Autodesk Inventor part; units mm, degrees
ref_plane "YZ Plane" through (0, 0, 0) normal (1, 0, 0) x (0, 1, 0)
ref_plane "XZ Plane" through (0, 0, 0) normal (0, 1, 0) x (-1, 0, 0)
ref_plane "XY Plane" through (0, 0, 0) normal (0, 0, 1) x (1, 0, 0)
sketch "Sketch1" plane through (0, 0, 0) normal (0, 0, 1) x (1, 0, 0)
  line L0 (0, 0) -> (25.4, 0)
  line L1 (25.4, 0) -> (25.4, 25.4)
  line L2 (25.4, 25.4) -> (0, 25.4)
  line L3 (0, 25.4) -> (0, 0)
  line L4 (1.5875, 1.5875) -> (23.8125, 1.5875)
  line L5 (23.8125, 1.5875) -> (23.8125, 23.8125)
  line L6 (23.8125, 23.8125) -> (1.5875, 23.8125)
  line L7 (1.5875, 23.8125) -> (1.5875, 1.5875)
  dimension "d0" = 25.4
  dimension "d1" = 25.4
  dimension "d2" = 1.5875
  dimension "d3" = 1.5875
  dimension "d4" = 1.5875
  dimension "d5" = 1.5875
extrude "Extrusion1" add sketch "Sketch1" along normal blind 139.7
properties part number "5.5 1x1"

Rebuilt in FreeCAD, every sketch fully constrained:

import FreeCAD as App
import Part
import Sketcher
from FreeCAD import Vector
Q = App.Units.Quantity


def add_polygon(sketch, points):
    """Adds a closed chain of lines whose ends are joined by coincident constraints."""
    first, n = sketch.GeometryCount, len(points)
    for a, b in zip(points, points[1:] + points[:1]):
        sketch.addGeometry(Part.LineSegment(App.Vector(*a, 0), App.Vector(*b, 0)), False)
    for i in range(n):
        sketch.addConstraint(Sketcher.Constraint("Coincident", first + i, 2, first + (i + 1) % n, 1))

doc = App.newDocument("Part")
body = doc.addObject("PartDesign::Body", "Body")

# Sketch on XY plane
sketch1 = body.newObject("Sketcher::SketchObject", "Sketch")
sketch1.AttachmentSupport = (doc.getObject("XY_Plane"), [""])
sketch1.MapMode = "FlatFace"
add_polygon(sketch1, [(0, 25), (0, 0), (25, 0), (25, 25)])  # lines 0-3
add_polygon(sketch1, [(24, 2), (2, 2), (2, 24), (24, 24)])  # lines 4-7
sketch1.addConstraint([
    Sketcher.Constraint("Vertical", 0),
    Sketcher.Constraint("Horizontal", 1),
    Sketcher.Constraint("Vertical", 2),
    Sketcher.Constraint("Horizontal", 3),
    Sketcher.Constraint("Horizontal", 4),
    Sketcher.Constraint("Vertical", 5),
    Sketcher.Constraint("Horizontal", 6),
    Sketcher.Constraint("Vertical", 7),
    Sketcher.Constraint("Coincident", 0, 2, -1, 1),
    Sketcher.Constraint("Equal", 3, 0),
    Sketcher.Constraint("Equal", 6, 5),
    Sketcher.Constraint("DistanceX", 1, 1, 1, 2, Q("1 in")),
    Sketcher.Constraint("DistanceX", -1, 1, 4, 2, Q("0.0625 in")),
    Sketcher.Constraint("DistanceY", -1, 1, 4, 2, Q("0.0625 in")),
    Sketcher.Constraint("DistanceY", 5, 2, 3, 2, Q("0.0625 in")),
])
pad1 = body.newObject("PartDesign::Pad", "Pad")
pad1.Profile = sketch1
pad1.Length = Q("5.5 in")

doc.recompute()
